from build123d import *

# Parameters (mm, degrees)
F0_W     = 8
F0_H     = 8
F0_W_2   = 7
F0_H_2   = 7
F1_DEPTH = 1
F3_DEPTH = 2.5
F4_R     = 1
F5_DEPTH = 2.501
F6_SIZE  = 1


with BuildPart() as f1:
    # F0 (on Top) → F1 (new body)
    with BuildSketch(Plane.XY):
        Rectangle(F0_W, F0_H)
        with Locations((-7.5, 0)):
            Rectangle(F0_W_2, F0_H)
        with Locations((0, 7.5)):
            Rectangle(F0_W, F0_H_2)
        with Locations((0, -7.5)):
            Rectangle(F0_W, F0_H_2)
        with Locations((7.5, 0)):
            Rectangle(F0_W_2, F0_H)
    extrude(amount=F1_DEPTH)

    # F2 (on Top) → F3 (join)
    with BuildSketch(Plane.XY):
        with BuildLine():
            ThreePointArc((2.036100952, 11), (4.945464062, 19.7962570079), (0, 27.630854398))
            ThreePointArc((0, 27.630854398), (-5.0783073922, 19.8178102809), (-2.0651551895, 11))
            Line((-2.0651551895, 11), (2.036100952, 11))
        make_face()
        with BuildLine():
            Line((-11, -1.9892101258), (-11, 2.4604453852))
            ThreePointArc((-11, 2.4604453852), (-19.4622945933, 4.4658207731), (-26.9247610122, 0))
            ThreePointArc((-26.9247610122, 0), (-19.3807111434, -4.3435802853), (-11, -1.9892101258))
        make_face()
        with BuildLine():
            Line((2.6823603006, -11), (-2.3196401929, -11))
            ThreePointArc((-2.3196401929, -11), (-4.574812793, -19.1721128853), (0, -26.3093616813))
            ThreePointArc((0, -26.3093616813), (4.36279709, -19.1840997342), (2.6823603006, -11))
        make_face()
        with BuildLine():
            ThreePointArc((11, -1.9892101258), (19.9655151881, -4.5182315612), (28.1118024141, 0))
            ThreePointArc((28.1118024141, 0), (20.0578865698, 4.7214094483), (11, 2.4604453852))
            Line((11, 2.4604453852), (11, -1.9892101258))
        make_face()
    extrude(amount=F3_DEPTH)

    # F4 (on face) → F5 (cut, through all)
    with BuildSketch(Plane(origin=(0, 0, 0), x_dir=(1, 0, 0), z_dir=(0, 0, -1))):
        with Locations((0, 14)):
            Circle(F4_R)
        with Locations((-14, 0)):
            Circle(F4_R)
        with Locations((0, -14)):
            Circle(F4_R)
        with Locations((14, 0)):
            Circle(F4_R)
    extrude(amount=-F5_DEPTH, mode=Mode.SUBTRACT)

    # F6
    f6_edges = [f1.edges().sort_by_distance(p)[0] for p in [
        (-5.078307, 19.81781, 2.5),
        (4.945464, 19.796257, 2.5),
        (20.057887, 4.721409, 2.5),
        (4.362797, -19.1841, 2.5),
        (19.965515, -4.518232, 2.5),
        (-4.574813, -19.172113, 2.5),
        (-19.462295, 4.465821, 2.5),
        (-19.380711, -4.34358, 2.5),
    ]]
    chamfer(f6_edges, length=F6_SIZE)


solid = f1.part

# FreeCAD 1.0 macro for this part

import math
import FreeCAD as App
import Part
import Sketcher
Q = App.Units.Quantity


def edges_at(feature, points):
    """Names of the edges that pass closest to the given points."""
    edges = feature.Shape.Edges
    near = lambda p: min(range(len(edges)), key=lambda i: edges[i].distToShape(Part.Vertex(*p))[0])
    return sorted({f"Edge{near(p) + 1}" for p in points})


def add_polygon(sketch, points):
    """Adds a closed chain of lines whose ends are joined by coincident constraints."""
    first, n = sketch.GeometryCount, len(points)
    for a, b in zip(points, points[1:] + points[:1]):
        sketch.addGeometry(Part.LineSegment(App.Vector(*a, 0), App.Vector(*b, 0)), False)
    for i in range(n):
        sketch.addConstraint(Sketcher.Constraint("Coincident", first + i, 2, first + (i + 1) % n, 1))

doc = App.newDocument("Part")
params = doc.addObject("Spreadsheet::Sheet", "Params")
for row, (alias, value) in enumerate([
    ("sketch1_width", "8 mm"),
    ("sketch1_width2", "7 mm"),
    ("pad1_length", "1 mm"),
    ("pad2_length", "2.5 mm"),
    ("sketch3_diameter", "2 mm"),
    ("chamfer_size", "1 mm"),
], start=1):
    params.set(f"A{row}", alias)
    params.set(f"B{row}", "=" + value)
    params.setAlias(f"B{row}", alias)

body = doc.addObject("PartDesign::Body", "Body")

# Sketch on XY plane
sketch1 = doc.addObject("Sketcher::SketchObject", "Sketch")
body.addObject(sketch1)
sketch1.AttachmentSupport = (doc.XY_Plane, [""])
sketch1.MapMode = "FlatFace"
add_polygon(sketch1, [(4, 11), (-4, 11), (-4, 4), (-11, 4), (-11, -4), (-4, -4), (-4, -11), (4, -11), (4, -4), (11, -4), (11, 4), (4, 4)])  # lines 0-11
sketch1.addConstraint(Sketcher.Constraint("Horizontal", 0))
sketch1.addConstraint(Sketcher.Constraint("Vertical", 1))
sketch1.addConstraint(Sketcher.Constraint("Horizontal", 2))
sketch1.addConstraint(Sketcher.Constraint("Vertical", 3))
sketch1.addConstraint(Sketcher.Constraint("Horizontal", 4))
sketch1.addConstraint(Sketcher.Constraint("Vertical", 5))
sketch1.addConstraint(Sketcher.Constraint("Horizontal", 6))
sketch1.addConstraint(Sketcher.Constraint("Vertical", 7))
sketch1.addConstraint(Sketcher.Constraint("Horizontal", 8))
sketch1.addConstraint(Sketcher.Constraint("Vertical", 9))
sketch1.addConstraint(Sketcher.Constraint("Horizontal", 10))
sketch1.addConstraint(Sketcher.Constraint("Vertical", 11))
sketch1.addConstraint(Sketcher.Constraint("Symmetric", 0, 2, 6, 2, -1, 1))
sketch1.addConstraint(Sketcher.Constraint("Symmetric", 2, 2, 8, 2, -1, 1))
sketch1.addConstraint(Sketcher.Constraint("Symmetric", 4, 2, 10, 2, -1, 1))
sketch1.addConstraint(Sketcher.Constraint("Symmetric", 4, 2, 7, 2, -2))
sketch1.addConstraint(Sketcher.Constraint("Equal", 10, 1))
sketch1.addConstraint(Sketcher.Constraint("Equal", 6, 3))
sketch1.addConstraint(Sketcher.Constraint("DistanceX", 0, 2, 0, 1, Q("8 mm")))
sketch1.addConstraint(Sketcher.Constraint("DistanceX", 2, 2, 2, 1, Q("7 mm")))
sketch1.setExpression("Constraints[30]", "Params.sketch1_width")
sketch1.setExpression("Constraints[31]", "Params.sketch1_width2")
pad1 = doc.addObject("PartDesign::Pad", "Pad")
body.addObject(pad1)
pad1.Profile = sketch1
pad1.setExpression("Length", "Params.pad1_length")

# Sketch on XY plane
sketch2 = doc.addObject("Sketcher::SketchObject", "Sketch001")
body.addObject(sketch2)
sketch2.AttachmentSupport = (doc.XY_Plane, [""])
sketch2.MapMode = "FlatFace"
sketch2.addGeometry(Part.ArcOfCircle(Part.Circle(App.Vector(-5.8, 18.5, 0), App.Vector(0, 0, 1), 10.8), math.radians(-44), math.radians(58)), False)
sketch2.addGeometry(Part.ArcOfCircle(Part.Circle(App.Vector(5.5, 18.5, 0), App.Vector(0, 0, 1), 10.6), math.radians(121), math.radians(225)), False)
sketch2.addGeometry(Part.LineSegment(App.Vector(-2.1, 11, 0), App.Vector(2, 11, 0)), False)
sketch2.addGeometry(Part.LineSegment(App.Vector(-11, -2, 0), App.Vector(-11, 2.5, 0)), False)
sketch2.addGeometry(Part.ArcOfCircle(Part.Circle(App.Vector(-17.7, -6.9, 0), App.Vector(0, 0, 1), 11.6), math.radians(55), math.radians(143)), False)
sketch2.addGeometry(Part.ArcOfCircle(Part.Circle(App.Vector(-18, 6.8, 0), App.Vector(0, 0, 1), 11.2), math.radians(-143), math.radians(-51)), False)
sketch2.addGeometry(Part.LineSegment(App.Vector(2.7, -11, 0), App.Vector(-2.3, -11, 0)), False)
sketch2.addGeometry(Part.ArcOfCircle(Part.Circle(App.Vector(5.7, -17.6, 0), App.Vector(0, 0, 1), 10.4), math.radians(141), math.radians(237)), False)
sketch2.addGeometry(Part.ArcOfCircle(Part.Circle(App.Vector(-6.8, -17.2, 0), App.Vector(0, 0, 1), 11.4), math.radians(-53), math.radians(33)), False)
sketch2.addGeometry(Part.ArcOfCircle(Part.Circle(App.Vector(18.6, 7.6, 0), App.Vector(0, 0, 1), 12.2), math.radians(-128), math.radians(-39)), False)
sketch2.addGeometry(Part.ArcOfCircle(Part.Circle(App.Vector(18.3, -7.5, 0), App.Vector(0, 0, 1), 12.4), math.radians(37), math.radians(126)), False)
sketch2.addGeometry(Part.LineSegment(App.Vector(11, 2.5, 0), App.Vector(11, -2, 0)), False)
sketch2.addConstraint(Sketcher.Constraint("Coincident", 0, 2, 1, 1))
sketch2.addConstraint(Sketcher.Constraint("Coincident", 1, 2, 2, 1))
sketch2.addConstraint(Sketcher.Constraint("Coincident", 2, 2, 0, 1))
sketch2.addConstraint(Sketcher.Constraint("Coincident", 3, 2, 4, 1))
sketch2.addConstraint(Sketcher.Constraint("Coincident", 4, 2, 5, 1))
sketch2.addConstraint(Sketcher.Constraint("Coincident", 5, 2, 3, 1))
sketch2.addConstraint(Sketcher.Constraint("Coincident", 6, 2, 7, 1))
sketch2.addConstraint(Sketcher.Constraint("Coincident", 7, 2, 8, 1))
sketch2.addConstraint(Sketcher.Constraint("Coincident", 8, 2, 6, 1))
sketch2.addConstraint(Sketcher.Constraint("Coincident", 9, 2, 10, 1))
sketch2.addConstraint(Sketcher.Constraint("Coincident", 10, 2, 11, 1))
sketch2.addConstraint(Sketcher.Constraint("Coincident", 11, 2, 9, 1))
sketch2.addConstraint(Sketcher.Constraint("Horizontal", 2))
sketch2.addConstraint(Sketcher.Constraint("Vertical", 3))
sketch2.addConstraint(Sketcher.Constraint("Horizontal", 6))
sketch2.addConstraint(Sketcher.Constraint("Vertical", 11))
sketch2.addConstraint(Sketcher.Constraint("Symmetric", 3, 2, 10, 2, -2))
sketch2.addConstraint(Sketcher.Constraint("PointOnObject", 0, 2, -2))
sketch2.addConstraint(Sketcher.Constraint("PointOnObject", 4, 2, -1))
sketch2.addConstraint(Sketcher.Constraint("PointOnObject", 7, 2, -2))
sketch2.addConstraint(Sketcher.Constraint("PointOnObject", 9, 2, -1))
sketch2.addConstraint(Sketcher.Constraint("Horizontal", 5, 2, 11, 2))
sketch2.addConstraint(Sketcher.Constraint("DistanceY", -1, 1, 1, 2, Q("11 mm")))
sketch2.addConstraint(Sketcher.Constraint("DistanceX", 3, 2, -1, 1, Q("11 mm")))
sketch2.addConstraint(Sketcher.Constraint("DistanceY", 6, 2, -1, 1, Q("11 mm")))
sketch2.addConstraint(Sketcher.Constraint("DistanceX", 6, 2, 6, 1, Q("5.002 mm")))
sketch2.addConstraint(Sketcher.Constraint("Radius", 1, Q("10.649629 mm")))
sketch2.addConstraint(Sketcher.Constraint("Radius", 5, Q("11.226569 mm")))
sketch2.addConstraint(Sketcher.Constraint("Radius", 0, Q("10.847134 mm")))
sketch2.addConstraint(Sketcher.Constraint("Radius", 4, Q("11.550427 mm")))
sketch2.addConstraint(Sketcher.Constraint("Radius", 7, Q("10.403858 mm")))
sketch2.addConstraint(Sketcher.Constraint("Radius", 8, Q("11.377348 mm")))
sketch2.addConstraint(Sketcher.Constraint("Radius", 9, Q("12.231143 mm")))
sketch2.addConstraint(Sketcher.Constraint("Radius", 10, Q("12.355402 mm")))
sketch2.addConstraint(Sketcher.Constraint("DistanceX", -1, 1, 2, 2, Q("2.036101 mm")))
sketch2.addConstraint(Sketcher.Constraint("DistanceX", 5, 3, 0, 3, Q("12.167901 mm")))
sketch2.addConstraint(Sketcher.Constraint("DistanceY", 7, 2, 4, 3, Q("19.360199 mm")))
sketch2.addConstraint(Sketcher.Constraint("DistanceX", 2, 2, 9, 2, Q("26.075701 mm")))
sketch2.addConstraint(Sketcher.Constraint("DistanceX", 2, 1, 2, 2, Q("4.101256 mm")))
sketch2.addConstraint(Sketcher.Constraint("DistanceY", 3, 1, 3, 2, Q("4.449656 mm")))
sketch2.addConstraint(Sketcher.Constraint("DistanceX", 0, 3, -1, 1, Q("5.821279 mm")))
sketch2.addConstraint(Sketcher.Constraint("DistanceX", 4, 3, -1, 1, Q("17.69863 mm")))
sketch2.addConstraint(Sketcher.Constraint("DistanceX", -1, 1, 7, 3, Q("5.711639 mm")))
pad2 = doc.addObject("PartDesign::Pad", "Pad001")
body.addObject(pad2)
pad2.Profile = sketch2
pad2.setExpression("Length", "Params.pad2_length")

# Sketch on XY plane
sketch3 = doc.addObject("Sketcher::SketchObject", "Sketch002")
body.addObject(sketch3)
sketch3.AttachmentSupport = (doc.XY_Plane, [""])
sketch3.MapMode = "FlatFace"
sketch3.addGeometry(Part.Circle(App.Vector(0, -14, 0), App.Vector(0, 0, 1), 1), False)
sketch3.addGeometry(Part.Circle(App.Vector(-14, 0, 0), App.Vector(0, 0, 1), 1), False)
sketch3.addGeometry(Part.Circle(App.Vector(0, 14, 0), App.Vector(0, 0, 1), 1), False)
sketch3.addGeometry(Part.Circle(App.Vector(14, 0, 0), App.Vector(0, 0, 1), 1), False)
sketch3.addConstraint(Sketcher.Constraint("Equal", 0, 1))
sketch3.addConstraint(Sketcher.Constraint("Equal", 1, 2))
sketch3.addConstraint(Sketcher.Constraint("Equal", 2, 3))
sketch3.addConstraint(Sketcher.Constraint("Symmetric", 0, 3, 2, 3, -1, 1))
sketch3.addConstraint(Sketcher.Constraint("Symmetric", 1, 3, 3, 3, -1, 1))
sketch3.addConstraint(Sketcher.Constraint("PointOnObject", 0, 3, -2))
sketch3.addConstraint(Sketcher.Constraint("PointOnObject", 1, 3, -1))
sketch3.addConstraint(Sketcher.Constraint("Diameter", 0, Q("2 mm")))
sketch3.addConstraint(Sketcher.Constraint("DistanceY", 0, 3, -1, 1, Q("14 mm")))
sketch3.addConstraint(Sketcher.Constraint("DistanceX", 1, 3, -1, 1, Q("14 mm")))
sketch3.setExpression("Constraints[7]", "Params.sketch3_diameter")
pocket1 = doc.addObject("PartDesign::Pocket", "Pocket")
body.addObject(pocket1)
pocket1.Profile = sketch3
pocket1.Type = "ThroughAll"
pocket1.Reversed = True
doc.recompute()

chamfer = doc.addObject("PartDesign::Chamfer", "Chamfer")
body.addObject(chamfer)
chamfer.Base = (pocket1, edges_at(pocket1, [
    (-5.078, 19.818, 2.5),
    (4.945, 19.796, 2.5),
    (20.058, 4.721, 2.5),
    (4.363, -19.184, 2.5),
    (19.966, -4.518, 2.5),
    (-4.575, -19.172, 2.5),
    (-19.462, 4.466, 2.5),
    (-19.381, -4.344, 2.5),
]))
chamfer.setExpression("Size", "Params.chamfer_size")

doc.recompute()
